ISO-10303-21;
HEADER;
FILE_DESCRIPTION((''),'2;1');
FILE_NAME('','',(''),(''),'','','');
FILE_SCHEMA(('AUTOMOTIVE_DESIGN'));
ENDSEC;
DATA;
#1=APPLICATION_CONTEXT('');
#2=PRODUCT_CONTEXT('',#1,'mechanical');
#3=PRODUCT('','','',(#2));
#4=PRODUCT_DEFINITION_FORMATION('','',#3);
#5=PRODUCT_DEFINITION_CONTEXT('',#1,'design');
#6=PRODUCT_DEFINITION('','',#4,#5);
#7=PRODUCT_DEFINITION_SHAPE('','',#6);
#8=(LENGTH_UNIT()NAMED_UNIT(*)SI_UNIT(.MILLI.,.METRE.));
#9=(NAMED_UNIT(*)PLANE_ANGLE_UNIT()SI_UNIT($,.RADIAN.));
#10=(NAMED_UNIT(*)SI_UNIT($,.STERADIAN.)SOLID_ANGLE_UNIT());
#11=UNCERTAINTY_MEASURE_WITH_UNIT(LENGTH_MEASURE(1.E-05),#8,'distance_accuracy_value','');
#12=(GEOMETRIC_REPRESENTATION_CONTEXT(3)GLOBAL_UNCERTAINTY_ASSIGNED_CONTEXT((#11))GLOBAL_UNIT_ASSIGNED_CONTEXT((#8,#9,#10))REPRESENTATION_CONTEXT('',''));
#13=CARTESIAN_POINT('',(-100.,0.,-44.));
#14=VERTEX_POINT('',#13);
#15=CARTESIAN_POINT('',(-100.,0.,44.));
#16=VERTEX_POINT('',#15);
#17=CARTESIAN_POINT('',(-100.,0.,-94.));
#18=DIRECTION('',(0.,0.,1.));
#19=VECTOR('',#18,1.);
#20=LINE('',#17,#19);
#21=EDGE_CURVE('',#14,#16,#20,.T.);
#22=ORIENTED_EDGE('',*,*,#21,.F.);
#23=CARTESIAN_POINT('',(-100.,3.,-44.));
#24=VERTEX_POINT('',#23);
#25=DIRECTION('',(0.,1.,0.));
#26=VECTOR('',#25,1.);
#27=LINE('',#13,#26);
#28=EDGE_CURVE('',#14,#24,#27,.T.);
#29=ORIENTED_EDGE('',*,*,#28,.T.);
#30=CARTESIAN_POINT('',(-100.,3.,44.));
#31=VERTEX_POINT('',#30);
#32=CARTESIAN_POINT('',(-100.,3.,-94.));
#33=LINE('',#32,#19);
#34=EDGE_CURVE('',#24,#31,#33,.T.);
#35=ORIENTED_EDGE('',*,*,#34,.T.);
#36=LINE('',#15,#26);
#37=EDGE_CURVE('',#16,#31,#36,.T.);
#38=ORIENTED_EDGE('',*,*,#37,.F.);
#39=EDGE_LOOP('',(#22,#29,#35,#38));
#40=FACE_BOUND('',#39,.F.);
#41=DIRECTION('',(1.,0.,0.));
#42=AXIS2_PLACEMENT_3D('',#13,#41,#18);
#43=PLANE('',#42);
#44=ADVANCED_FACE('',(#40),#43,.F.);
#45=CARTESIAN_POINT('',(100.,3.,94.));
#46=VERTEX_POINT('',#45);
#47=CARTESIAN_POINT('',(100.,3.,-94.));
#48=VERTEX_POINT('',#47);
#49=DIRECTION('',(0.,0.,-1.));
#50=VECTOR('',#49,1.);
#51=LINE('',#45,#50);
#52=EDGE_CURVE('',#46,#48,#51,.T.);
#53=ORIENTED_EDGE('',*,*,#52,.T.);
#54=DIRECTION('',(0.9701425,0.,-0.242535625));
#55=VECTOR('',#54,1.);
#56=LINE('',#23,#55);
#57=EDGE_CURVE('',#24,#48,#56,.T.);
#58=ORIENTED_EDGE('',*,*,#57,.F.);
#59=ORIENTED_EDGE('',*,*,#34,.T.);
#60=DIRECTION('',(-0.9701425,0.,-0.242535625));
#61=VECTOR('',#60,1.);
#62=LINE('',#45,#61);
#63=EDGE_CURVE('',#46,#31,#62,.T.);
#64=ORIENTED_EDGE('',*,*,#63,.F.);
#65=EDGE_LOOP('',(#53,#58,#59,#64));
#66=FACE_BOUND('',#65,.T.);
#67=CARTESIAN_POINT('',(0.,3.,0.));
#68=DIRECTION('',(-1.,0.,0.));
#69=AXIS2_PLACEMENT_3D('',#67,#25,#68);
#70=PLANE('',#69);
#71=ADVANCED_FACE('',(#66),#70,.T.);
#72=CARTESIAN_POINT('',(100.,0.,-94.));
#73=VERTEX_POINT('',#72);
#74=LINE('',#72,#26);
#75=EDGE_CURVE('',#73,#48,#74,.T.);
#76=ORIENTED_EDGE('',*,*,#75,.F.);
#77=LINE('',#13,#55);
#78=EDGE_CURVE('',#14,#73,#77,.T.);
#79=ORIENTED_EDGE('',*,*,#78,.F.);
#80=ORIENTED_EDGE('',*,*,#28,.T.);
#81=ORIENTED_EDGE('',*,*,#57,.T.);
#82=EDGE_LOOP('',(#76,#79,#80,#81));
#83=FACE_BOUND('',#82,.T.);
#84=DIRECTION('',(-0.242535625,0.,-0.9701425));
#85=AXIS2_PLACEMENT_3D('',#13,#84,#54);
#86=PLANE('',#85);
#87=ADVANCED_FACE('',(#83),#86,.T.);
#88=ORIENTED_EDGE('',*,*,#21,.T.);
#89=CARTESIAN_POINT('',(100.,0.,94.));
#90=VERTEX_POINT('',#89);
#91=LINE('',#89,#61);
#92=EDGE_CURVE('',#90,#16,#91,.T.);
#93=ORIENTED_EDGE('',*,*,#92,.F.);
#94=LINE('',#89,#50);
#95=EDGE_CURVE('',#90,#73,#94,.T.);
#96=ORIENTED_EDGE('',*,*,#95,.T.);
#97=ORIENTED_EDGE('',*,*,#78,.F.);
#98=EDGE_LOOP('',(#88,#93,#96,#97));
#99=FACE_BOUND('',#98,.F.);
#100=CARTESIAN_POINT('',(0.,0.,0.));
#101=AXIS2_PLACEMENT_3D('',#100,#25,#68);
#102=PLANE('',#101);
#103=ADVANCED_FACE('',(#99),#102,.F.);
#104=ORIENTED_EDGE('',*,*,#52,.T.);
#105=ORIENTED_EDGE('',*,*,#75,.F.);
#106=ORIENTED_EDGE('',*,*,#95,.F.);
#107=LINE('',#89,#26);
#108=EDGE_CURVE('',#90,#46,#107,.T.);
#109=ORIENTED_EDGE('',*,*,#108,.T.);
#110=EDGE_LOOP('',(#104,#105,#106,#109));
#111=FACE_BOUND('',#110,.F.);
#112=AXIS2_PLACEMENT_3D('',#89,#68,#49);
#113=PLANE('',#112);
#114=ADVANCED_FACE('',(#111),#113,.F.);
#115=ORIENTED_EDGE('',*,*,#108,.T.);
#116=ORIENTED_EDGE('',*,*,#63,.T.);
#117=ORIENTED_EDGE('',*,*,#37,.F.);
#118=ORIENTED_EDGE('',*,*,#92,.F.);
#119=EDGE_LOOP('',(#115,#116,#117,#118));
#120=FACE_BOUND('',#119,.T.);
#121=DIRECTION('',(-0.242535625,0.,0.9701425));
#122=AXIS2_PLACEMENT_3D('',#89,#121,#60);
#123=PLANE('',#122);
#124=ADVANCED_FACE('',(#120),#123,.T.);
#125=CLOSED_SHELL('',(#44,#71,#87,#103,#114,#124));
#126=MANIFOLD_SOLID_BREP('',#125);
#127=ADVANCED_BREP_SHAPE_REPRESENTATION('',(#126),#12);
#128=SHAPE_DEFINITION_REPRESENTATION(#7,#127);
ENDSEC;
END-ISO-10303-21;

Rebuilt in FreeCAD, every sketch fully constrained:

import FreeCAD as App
import Part
import Sketcher

V = App.Vector

doc = App.newDocument("Part")
body = doc.addObject("PartDesign::Body", "Body")

# Sketch on XZ plane
sketch1 = body.newObject("Sketcher::SketchObject", "Sketch")
sketch1.AttachmentSupport = (doc.getObject("XZ_Plane"), [""])
sketch1.MapMode = "FlatFace"
sketch1.addGeometry([
    Part.LineSegment(V(-100, 44, 0), V(100, 94, 0)),
    Part.LineSegment(V(100, 94, 0), V(100, -94, 0)),
    Part.LineSegment(V(100, -94, 0), V(-100, -44, 0)),
    Part.LineSegment(V(-100, -44, 0), V(-100, 44, 0)),
], False)
sketch1.addConstraint([
    Sketcher.Constraint("Coincident", 0, 2, 1, 1),
    Sketcher.Constraint("Coincident", 1, 2, 2, 1),
    Sketcher.Constraint("Coincident", 2, 2, 3, 1),
    Sketcher.Constraint("Coincident", 3, 2, 0, 1),
    Sketcher.Constraint("Vertical", 1),
    Sketcher.Constraint("Vertical", 3),
    Sketcher.Constraint("Equal", 0, 2),
    Sketcher.Constraint("DistanceY", 1, 2, 1, 1, 188.0),
    Sketcher.Constraint("DistanceX", 2, 2, 1, 2, 200.0),
    Sketcher.Constraint("DistanceY", 1, 2, 2, 2, 50.0),
    Sketcher.Constraint("DistanceX", -1, 1, 0, 2, 100.0),
    Sketcher.Constraint("DistanceY", -1, 1, 0, 2, 94.0),
])
pad1 = body.newObject("PartDesign::Pad", "Pad")
pad1.Profile = sketch1
pad1.Length = 3
pad1.Reversed = True

doc.recompute()
